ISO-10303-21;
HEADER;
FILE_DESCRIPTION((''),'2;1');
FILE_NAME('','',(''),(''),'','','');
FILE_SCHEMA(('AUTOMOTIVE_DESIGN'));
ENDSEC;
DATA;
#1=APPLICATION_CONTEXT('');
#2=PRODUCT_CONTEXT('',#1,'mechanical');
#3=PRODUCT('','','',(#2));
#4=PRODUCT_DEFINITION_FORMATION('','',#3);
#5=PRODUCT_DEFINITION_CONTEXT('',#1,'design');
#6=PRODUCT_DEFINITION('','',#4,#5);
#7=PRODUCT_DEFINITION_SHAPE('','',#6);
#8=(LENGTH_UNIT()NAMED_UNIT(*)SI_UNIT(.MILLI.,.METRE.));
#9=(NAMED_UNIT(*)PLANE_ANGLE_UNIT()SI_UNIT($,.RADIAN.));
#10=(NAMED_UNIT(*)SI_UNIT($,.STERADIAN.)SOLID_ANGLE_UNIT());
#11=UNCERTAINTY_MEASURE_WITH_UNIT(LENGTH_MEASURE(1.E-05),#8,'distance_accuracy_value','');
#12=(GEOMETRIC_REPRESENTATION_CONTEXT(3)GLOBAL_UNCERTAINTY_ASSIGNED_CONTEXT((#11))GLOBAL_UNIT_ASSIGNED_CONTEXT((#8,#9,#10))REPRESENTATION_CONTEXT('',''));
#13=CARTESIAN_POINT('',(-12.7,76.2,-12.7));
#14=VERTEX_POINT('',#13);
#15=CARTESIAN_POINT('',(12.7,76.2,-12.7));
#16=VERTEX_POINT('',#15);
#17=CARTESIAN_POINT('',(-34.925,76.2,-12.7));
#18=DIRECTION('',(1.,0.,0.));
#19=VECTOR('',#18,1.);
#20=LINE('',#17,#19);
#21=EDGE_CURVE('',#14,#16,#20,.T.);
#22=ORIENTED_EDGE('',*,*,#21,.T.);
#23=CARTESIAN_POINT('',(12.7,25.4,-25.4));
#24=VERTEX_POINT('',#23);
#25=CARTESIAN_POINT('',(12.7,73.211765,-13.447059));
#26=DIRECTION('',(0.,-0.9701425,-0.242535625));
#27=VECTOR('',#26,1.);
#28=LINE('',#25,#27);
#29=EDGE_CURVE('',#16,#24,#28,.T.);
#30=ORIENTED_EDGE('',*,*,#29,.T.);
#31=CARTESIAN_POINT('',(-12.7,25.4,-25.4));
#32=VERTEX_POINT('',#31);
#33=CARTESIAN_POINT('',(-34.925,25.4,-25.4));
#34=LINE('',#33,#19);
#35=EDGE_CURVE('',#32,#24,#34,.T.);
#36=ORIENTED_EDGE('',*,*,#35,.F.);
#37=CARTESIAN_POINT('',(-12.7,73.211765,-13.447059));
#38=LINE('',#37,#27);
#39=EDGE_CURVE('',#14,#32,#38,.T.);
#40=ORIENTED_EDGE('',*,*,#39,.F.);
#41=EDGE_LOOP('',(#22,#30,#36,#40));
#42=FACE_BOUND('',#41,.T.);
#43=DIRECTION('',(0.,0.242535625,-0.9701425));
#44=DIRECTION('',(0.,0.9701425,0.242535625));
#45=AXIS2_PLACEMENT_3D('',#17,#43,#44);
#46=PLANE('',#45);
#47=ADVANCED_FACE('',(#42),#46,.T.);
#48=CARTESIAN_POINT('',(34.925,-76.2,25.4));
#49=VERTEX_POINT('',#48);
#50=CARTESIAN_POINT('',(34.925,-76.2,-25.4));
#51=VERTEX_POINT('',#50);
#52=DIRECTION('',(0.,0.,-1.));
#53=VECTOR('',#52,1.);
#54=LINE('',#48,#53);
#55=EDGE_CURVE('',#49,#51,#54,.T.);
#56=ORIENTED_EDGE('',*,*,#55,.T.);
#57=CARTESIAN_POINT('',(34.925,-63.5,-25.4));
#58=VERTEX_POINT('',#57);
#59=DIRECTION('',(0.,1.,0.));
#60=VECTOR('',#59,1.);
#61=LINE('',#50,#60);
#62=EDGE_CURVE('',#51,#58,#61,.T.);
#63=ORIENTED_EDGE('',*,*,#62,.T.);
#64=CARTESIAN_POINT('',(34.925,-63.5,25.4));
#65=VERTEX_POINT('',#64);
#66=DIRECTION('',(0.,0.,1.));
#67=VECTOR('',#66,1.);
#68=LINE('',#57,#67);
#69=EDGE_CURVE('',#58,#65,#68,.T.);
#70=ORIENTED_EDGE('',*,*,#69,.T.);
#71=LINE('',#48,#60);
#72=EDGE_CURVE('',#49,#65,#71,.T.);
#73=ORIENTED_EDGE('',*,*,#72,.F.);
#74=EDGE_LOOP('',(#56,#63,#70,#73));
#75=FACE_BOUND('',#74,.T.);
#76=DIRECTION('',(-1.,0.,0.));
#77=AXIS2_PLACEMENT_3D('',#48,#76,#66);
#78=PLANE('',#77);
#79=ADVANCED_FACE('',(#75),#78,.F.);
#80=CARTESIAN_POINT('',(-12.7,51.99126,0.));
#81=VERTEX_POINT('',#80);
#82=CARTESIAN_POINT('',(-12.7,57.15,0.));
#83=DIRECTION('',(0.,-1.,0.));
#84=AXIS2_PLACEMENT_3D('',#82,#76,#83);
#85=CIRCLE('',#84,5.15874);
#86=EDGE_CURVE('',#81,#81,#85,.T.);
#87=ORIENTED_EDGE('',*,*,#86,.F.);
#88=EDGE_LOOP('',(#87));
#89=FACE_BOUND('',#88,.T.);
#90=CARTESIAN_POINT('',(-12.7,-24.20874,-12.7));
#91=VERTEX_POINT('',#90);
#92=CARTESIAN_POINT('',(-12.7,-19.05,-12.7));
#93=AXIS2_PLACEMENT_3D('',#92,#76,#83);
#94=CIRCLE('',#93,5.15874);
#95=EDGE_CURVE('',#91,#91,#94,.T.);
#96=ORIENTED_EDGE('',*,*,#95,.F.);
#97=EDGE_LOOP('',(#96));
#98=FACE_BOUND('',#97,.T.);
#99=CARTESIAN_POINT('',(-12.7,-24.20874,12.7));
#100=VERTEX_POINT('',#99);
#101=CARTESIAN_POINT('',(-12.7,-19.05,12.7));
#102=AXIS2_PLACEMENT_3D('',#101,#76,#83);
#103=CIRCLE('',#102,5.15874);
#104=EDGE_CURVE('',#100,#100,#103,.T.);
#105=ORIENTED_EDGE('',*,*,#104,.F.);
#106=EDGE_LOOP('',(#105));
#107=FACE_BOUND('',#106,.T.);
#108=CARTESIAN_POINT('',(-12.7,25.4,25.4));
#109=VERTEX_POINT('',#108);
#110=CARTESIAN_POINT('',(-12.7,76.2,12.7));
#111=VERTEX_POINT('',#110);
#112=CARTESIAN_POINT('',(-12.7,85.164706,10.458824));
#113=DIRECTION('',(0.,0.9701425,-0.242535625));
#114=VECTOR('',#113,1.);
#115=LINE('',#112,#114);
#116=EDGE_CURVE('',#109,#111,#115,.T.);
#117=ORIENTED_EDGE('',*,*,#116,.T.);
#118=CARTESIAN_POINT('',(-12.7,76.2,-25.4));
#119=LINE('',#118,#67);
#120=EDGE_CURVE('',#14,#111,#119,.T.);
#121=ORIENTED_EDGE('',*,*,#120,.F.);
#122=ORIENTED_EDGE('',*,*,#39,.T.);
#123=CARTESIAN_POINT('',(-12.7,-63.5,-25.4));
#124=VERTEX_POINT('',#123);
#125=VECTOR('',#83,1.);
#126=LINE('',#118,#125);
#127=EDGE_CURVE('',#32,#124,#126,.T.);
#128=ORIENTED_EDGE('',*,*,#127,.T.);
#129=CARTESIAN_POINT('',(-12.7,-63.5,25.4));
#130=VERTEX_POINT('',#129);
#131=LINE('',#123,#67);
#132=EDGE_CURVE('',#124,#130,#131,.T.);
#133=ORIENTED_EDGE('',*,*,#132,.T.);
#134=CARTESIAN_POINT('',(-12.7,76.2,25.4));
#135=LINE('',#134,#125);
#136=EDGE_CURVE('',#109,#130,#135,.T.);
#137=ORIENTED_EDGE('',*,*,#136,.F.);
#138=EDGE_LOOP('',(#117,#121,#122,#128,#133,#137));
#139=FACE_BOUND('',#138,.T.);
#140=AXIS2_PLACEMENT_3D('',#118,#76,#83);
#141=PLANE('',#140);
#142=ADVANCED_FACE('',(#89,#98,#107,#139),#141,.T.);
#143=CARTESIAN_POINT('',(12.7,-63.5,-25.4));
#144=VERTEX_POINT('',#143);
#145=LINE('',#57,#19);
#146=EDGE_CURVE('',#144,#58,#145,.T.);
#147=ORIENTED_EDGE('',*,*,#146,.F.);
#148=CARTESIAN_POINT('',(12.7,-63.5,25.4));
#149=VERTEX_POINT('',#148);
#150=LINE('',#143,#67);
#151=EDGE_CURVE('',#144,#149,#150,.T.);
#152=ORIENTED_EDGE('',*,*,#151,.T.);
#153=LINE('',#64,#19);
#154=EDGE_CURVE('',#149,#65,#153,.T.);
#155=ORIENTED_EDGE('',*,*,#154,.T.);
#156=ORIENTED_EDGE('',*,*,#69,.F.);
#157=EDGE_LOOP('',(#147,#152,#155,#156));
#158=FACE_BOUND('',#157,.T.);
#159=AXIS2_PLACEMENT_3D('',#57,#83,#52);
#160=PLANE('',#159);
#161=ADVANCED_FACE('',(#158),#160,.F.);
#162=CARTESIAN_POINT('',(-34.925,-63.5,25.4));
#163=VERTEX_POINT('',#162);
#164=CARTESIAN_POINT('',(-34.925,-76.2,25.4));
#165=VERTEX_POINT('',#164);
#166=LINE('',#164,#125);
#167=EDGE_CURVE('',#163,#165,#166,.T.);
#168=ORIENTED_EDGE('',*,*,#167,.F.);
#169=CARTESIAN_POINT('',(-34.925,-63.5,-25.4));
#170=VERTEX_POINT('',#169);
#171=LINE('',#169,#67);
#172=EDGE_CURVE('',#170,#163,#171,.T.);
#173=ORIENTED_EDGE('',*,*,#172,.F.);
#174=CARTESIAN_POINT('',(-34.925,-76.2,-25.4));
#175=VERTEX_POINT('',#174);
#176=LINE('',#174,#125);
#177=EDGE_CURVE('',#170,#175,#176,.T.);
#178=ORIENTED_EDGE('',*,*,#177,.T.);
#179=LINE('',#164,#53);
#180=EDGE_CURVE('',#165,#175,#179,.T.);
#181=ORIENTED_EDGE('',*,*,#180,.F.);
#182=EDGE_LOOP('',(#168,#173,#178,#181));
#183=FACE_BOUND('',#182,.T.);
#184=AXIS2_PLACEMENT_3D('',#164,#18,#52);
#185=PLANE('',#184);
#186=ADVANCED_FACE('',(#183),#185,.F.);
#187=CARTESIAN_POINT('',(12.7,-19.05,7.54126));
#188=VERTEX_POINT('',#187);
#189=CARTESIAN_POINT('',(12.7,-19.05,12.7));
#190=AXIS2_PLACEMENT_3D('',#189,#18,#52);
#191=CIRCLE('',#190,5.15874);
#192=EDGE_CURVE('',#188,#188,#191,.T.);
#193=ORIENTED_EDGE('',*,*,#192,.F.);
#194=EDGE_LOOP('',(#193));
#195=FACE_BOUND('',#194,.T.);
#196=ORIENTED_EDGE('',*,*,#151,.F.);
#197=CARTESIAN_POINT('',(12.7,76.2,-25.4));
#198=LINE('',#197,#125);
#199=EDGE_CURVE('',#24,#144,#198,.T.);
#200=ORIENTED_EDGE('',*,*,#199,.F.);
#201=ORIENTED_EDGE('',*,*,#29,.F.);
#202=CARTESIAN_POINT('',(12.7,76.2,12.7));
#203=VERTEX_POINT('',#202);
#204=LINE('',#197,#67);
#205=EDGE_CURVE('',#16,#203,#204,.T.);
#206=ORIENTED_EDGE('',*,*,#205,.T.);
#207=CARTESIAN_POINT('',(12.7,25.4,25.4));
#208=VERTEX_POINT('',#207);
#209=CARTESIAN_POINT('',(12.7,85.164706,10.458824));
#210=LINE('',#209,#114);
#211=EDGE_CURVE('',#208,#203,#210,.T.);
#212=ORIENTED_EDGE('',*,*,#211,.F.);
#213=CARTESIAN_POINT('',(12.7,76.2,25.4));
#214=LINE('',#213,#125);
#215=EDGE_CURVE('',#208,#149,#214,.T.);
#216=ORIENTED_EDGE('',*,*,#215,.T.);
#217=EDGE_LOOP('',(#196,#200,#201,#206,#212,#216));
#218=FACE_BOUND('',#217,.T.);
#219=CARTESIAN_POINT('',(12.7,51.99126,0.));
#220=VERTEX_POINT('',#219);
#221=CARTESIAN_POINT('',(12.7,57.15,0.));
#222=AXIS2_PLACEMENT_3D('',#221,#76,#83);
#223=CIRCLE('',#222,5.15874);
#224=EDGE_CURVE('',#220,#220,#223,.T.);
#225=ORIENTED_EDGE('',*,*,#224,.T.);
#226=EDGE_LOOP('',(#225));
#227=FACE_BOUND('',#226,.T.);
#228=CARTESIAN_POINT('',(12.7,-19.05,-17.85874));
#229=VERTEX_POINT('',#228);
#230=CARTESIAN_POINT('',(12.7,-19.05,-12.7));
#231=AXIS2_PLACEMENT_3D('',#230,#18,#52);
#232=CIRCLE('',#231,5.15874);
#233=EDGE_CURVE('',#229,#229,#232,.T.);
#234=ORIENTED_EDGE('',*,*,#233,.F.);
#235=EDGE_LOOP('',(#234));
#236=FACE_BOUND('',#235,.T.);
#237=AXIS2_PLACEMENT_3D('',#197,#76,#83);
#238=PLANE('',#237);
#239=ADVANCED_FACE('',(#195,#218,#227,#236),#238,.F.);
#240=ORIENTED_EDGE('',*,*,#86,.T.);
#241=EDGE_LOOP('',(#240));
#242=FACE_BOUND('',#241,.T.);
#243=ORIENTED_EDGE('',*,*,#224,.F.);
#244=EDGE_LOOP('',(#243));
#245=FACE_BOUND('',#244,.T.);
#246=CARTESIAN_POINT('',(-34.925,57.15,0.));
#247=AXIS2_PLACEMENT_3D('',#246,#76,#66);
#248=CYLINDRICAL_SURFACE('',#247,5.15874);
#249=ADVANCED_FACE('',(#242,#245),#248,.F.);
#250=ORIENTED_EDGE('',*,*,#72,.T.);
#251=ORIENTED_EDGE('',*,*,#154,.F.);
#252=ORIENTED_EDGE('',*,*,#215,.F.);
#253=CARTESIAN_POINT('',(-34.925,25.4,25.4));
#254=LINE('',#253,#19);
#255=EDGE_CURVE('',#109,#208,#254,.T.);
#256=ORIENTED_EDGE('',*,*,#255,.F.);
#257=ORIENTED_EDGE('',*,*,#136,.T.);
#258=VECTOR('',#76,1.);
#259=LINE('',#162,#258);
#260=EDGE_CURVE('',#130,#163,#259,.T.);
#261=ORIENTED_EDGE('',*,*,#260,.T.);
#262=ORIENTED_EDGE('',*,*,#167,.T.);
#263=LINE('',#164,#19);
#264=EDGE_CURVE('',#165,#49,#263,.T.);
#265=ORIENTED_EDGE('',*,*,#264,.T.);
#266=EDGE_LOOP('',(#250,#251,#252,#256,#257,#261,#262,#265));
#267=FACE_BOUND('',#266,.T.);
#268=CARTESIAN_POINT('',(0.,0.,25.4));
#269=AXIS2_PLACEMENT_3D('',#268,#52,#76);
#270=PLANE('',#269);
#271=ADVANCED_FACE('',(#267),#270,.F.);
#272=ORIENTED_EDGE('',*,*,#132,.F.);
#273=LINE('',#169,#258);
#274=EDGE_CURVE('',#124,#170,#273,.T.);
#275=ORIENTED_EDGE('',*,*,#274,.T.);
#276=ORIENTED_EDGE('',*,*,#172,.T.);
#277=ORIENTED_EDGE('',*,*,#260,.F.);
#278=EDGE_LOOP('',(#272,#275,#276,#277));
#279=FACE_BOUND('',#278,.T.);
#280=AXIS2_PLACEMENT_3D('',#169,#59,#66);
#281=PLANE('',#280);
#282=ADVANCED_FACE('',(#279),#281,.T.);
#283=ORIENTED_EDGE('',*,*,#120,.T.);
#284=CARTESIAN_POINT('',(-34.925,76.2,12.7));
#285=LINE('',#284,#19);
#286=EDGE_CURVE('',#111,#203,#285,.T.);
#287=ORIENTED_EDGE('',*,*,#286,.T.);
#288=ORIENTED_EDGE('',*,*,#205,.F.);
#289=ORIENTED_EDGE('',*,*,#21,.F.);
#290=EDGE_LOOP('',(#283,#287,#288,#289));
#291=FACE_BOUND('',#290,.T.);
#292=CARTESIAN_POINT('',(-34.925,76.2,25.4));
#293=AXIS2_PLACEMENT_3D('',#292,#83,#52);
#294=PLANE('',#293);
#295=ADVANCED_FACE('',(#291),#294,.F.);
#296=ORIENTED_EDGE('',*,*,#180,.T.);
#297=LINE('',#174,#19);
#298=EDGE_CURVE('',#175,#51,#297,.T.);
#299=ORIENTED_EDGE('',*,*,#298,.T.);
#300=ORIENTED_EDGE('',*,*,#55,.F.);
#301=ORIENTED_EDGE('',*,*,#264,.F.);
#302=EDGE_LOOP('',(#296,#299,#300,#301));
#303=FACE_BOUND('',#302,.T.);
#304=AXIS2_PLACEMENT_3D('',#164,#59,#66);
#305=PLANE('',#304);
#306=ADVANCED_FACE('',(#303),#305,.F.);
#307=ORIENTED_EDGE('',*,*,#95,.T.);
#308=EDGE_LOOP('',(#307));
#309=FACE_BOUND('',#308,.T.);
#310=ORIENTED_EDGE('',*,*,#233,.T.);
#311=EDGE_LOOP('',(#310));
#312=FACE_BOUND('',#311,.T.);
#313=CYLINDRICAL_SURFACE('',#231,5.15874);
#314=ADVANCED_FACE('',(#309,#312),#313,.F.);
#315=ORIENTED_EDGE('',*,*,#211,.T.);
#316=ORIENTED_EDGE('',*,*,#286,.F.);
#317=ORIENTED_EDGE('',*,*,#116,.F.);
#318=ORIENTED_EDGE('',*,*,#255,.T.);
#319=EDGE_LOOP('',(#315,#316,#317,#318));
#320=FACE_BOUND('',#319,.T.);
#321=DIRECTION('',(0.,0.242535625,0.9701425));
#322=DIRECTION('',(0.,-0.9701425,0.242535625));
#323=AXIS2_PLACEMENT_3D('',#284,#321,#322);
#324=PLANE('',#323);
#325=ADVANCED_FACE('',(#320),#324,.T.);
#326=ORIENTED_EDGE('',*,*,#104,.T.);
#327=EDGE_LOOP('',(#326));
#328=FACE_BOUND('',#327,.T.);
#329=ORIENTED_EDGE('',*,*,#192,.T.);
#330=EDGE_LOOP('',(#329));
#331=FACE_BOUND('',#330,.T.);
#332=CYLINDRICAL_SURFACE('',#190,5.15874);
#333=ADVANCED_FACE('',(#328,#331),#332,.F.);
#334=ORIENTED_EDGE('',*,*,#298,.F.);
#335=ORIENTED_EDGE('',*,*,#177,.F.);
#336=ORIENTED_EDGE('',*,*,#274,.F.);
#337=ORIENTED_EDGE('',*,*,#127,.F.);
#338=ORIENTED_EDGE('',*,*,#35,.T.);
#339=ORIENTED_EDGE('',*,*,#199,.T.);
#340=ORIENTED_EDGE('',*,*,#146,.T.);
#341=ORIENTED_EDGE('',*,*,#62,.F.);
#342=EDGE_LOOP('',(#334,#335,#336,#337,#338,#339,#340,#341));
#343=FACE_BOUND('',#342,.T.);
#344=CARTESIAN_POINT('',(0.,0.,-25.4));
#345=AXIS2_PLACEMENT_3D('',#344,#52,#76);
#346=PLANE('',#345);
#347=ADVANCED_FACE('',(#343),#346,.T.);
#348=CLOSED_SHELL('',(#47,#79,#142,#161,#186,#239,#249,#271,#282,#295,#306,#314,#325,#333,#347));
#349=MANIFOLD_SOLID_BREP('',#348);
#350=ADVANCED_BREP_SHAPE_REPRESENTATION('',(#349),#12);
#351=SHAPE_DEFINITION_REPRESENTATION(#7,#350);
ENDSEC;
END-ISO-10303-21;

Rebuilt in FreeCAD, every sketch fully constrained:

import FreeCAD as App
import Part
import Sketcher
Q = App.Units.Quantity

doc = App.newDocument("Part")
body = doc.addObject("PartDesign::Body", "Body")

# Sketch on XY plane
sketch1 = body.newObject("Sketcher::SketchObject", "Sketch")
sketch1.AttachmentSupport = (doc.getObject("XY_Plane"), [""])
sketch1.MapMode = "FlatFace"
sketch1.addGeometry(Part.LineSegment(App.Vector(-35, 76, 0), App.Vector(-35, -76, 0)), False)
sketch1.addGeometry(Part.LineSegment(App.Vector(-35, -76, 0), App.Vector(35, -76, 0)), False)
sketch1.addGeometry(Part.LineSegment(App.Vector(35, -76, 0), App.Vector(35, 76, 0)), False)
sketch1.addGeometry(Part.LineSegment(App.Vector(35, 76, 0), App.Vector(-35, 76, 0)), False)
sketch1.addConstraint(Sketcher.Constraint("Coincident", 0, 2, 1, 1))
sketch1.addConstraint(Sketcher.Constraint("Coincident", 1, 2, 2, 1))
sketch1.addConstraint(Sketcher.Constraint("Coincident", 2, 2, 3, 1))
sketch1.addConstraint(Sketcher.Constraint("Coincident", 3, 2, 0, 1))
sketch1.addConstraint(Sketcher.Constraint("Vertical", 0))
sketch1.addConstraint(Sketcher.Constraint("Horizontal", 1))
sketch1.addConstraint(Sketcher.Constraint("Vertical", 2))
sketch1.addConstraint(Sketcher.Constraint("Horizontal", 3))
sketch1.addConstraint(Sketcher.Constraint("Symmetric", 0, 2, 2, 2, -1, 1))
sketch1.addConstraint(Sketcher.Constraint("DistanceY", 0, 2, 0, 1, Q("6 in")))
sketch1.addConstraint(Sketcher.Constraint("DistanceX", 1, 1, 1, 2, Q("2.75 in")))
pad1 = body.newObject("PartDesign::Pad", "Pad")
pad1.Profile = sketch1
pad1.Length = Q("2 in")
pad1.Midplane = True

# Sketch on XY plane
sketch2 = body.newObject("Sketcher::SketchObject", "Sketch001")
sketch2.AttachmentSupport = (doc.getObject("XY_Plane"), [""])
sketch2.MapMode = "FlatFace"
sketch2.addGeometry(Part.LineSegment(App.Vector(13, 76, 0), App.Vector(13, -64, 0)), False)
sketch2.addGeometry(Part.LineSegment(App.Vector(13, -64, 0), App.Vector(35, -64, 0)), False)
sketch2.addGeometry(Part.LineSegment(App.Vector(35, -64, 0), App.Vector(35, 76, 0)), False)
sketch2.addGeometry(Part.LineSegment(App.Vector(35, 76, 0), App.Vector(13, 76, 0)), False)
sketch2.addConstraint(Sketcher.Constraint("Coincident", 0, 2, 1, 1))
sketch2.addConstraint(Sketcher.Constraint("Coincident", 1, 2, 2, 1))
sketch2.addConstraint(Sketcher.Constraint("Coincident", 2, 2, 3, 1))
sketch2.addConstraint(Sketcher.Constraint("Coincident", 3, 2, 0, 1))
sketch2.addConstraint(Sketcher.Constraint("Vertical", 0))
sketch2.addConstraint(Sketcher.Constraint("Horizontal", 1))
sketch2.addConstraint(Sketcher.Constraint("Vertical", 2))
sketch2.addConstraint(Sketcher.Constraint("Horizontal", 3))
sketch2.addConstraint(Sketcher.Constraint("DistanceY", 0, 2, 0, 1, Q("5.5 in")))
sketch2.addConstraint(Sketcher.Constraint("DistanceY", -1, 1, 2, 2, Q("3 in")))
sketch2.addConstraint(Sketcher.Constraint("DistanceX", -1, 1, 0, 2, Q("0.5 in")))
sketch2.addConstraint(Sketcher.Constraint("DistanceX", 1, 1, 1, 2, Q("0.875 in")))
pocket1 = body.newObject("PartDesign::Pocket", "Pocket")
pocket1.Profile = sketch2
pocket1.Length = 52.8
pocket1.Midplane = True
doc.recompute()

mirrored = body.newObject("PartDesign::Mirrored", "Mirrored")
mirrored.Originals = [pocket1]
mirrored.MirrorPlane = (doc.getObject("YZ_Plane"), [""])
body.Tip = mirrored

# Sketch on YZ plane
sketch3 = body.newObject("Sketcher::SketchObject", "Sketch002")
sketch3.AttachmentSupport = (doc.getObject("YZ_Plane"), [""])
sketch3.MapMode = "FlatFace"
sketch3.addGeometry(Part.LineSegment(App.Vector(95, 44, 0), App.Vector(-95, 44, 0)), False)
sketch3.addGeometry(Part.LineSegment(App.Vector(-95, 44, 0), App.Vector(-95, -44, 0)), False)
sketch3.addGeometry(Part.LineSegment(App.Vector(-95, -44, 0), App.Vector(95, -44, 0)), False)
sketch3.addGeometry(Part.LineSegment(App.Vector(95, -44, 0), App.Vector(95, 44, 0)), False)
sketch3.addGeometry(Part.LineSegment(App.Vector(-76, 25, 0), App.Vector(25, 25, 0)), False)
sketch3.addGeometry(Part.LineSegment(App.Vector(25, 25, 0), App.Vector(76, 13, 0)), False)
sketch3.addGeometry(Part.LineSegment(App.Vector(76, 13, 0), App.Vector(76, -13, 0)), False)
sketch3.addGeometry(Part.LineSegment(App.Vector(76, -13, 0), App.Vector(25, -25, 0)), False)
sketch3.addGeometry(Part.LineSegment(App.Vector(25, -25, 0), App.Vector(-76, -25, 0)), False)
sketch3.addGeometry(Part.LineSegment(App.Vector(-76, -25, 0), App.Vector(-76, 25, 0)), False)
sketch3.addConstraint(Sketcher.Constraint("Coincident", 0, 2, 1, 1))
sketch3.addConstraint(Sketcher.Constraint("Coincident", 1, 2, 2, 1))
sketch3.addConstraint(Sketcher.Constraint("Coincident", 2, 2, 3, 1))
sketch3.addConstraint(Sketcher.Constraint("Coincident", 3, 2, 0, 1))
sketch3.addConstraint(Sketcher.Constraint("Coincident", 4, 2, 5, 1))
sketch3.addConstraint(Sketcher.Constraint("Coincident", 5, 2, 6, 1))
sketch3.addConstraint(Sketcher.Constraint("Coincident", 6, 2, 7, 1))
sketch3.addConstraint(Sketcher.Constraint("Coincident", 7, 2, 8, 1))
sketch3.addConstraint(Sketcher.Constraint("Coincident", 8, 2, 9, 1))
sketch3.addConstraint(Sketcher.Constraint("Coincident", 9, 2, 4, 1))
sketch3.addConstraint(Sketcher.Constraint("Horizontal", 0))
sketch3.addConstraint(Sketcher.Constraint("Vertical", 1))
sketch3.addConstraint(Sketcher.Constraint("Horizontal", 2))
sketch3.addConstraint(Sketcher.Constraint("Vertical", 3))
sketch3.addConstraint(Sketcher.Constraint("Horizontal", 4))
sketch3.addConstraint(Sketcher.Constraint("Vertical", 6))
sketch3.addConstraint(Sketcher.Constraint("Horizontal", 8))
sketch3.addConstraint(Sketcher.Constraint("Vertical", 9))
sketch3.addConstraint(Sketcher.Constraint("Symmetric", 0, 2, 2, 2, -1, 1))
sketch3.addConstraint(Sketcher.Constraint("Symmetric", 4, 2, 7, 2, -1))
sketch3.addConstraint(Sketcher.Constraint("Equal", 5, 7))
sketch3.addConstraint(Sketcher.Constraint("DistanceX", 4, 1, 4, 2, Q("4 in")))
sketch3.addConstraint(Sketcher.Constraint("DistanceY", 6, 2, 6, 1, Q("1 in")))
sketch3.addConstraint(Sketcher.Constraint("DistanceY", 9, 1, 9, 2, Q("2 in")))
sketch3.addConstraint(Sketcher.Constraint("DistanceX", -1, 1, 4, 2, Q("1 in")))
sketch3.addConstraint(Sketcher.Constraint("DistanceX", -1, 1, 5, 2, Q("3 in")))
sketch3.addConstraint(Sketcher.Constraint("DistanceX", 0, 2, 0, 1, 189.434))
sketch3.addConstraint(Sketcher.Constraint("DistanceY", 1, 2, 1, 1, 87.834))
pocket2 = body.newObject("PartDesign::Pocket", "Pocket001")
pocket2.Profile = sketch3
pocket2.Type = "ThroughAll"
pocket2.Midplane = True

# Sketch on YZ plane
sketch4 = body.newObject("Sketcher::SketchObject", "Sketch003")
sketch4.AttachmentSupport = (doc.getObject("YZ_Plane"), [""])
sketch4.MapMode = "FlatFace"
sketch4.AttachmentOffset = App.Placement(App.Vector(0, 0, -1.375 * 25.4), App.Rotation())
sketch4.addGeometry(Part.Circle(App.Vector(83, 25, 0), App.Vector(0, 0, 1), 5), False)
sketch4.addGeometry(Part.Circle(App.Vector(57, 0, 0), App.Vector(0, 0, 1), 5), False)
sketch4.addConstraint(Sketcher.Constraint("Equal", 0, 1))
sketch4.addConstraint(Sketcher.Constraint("PointOnObject", 1, 3, -1))
sketch4.addConstraint(Sketcher.Constraint("DistanceY", -1, 1, 0, 3, Q("1 in")))
sketch4.addConstraint(Sketcher.Constraint("DistanceX", 1, 3, 0, 3, Q("1 in")))
sketch4.addConstraint(Sketcher.Constraint("Diameter", 0, Q("0.4062 in")))
sketch4.addConstraint(Sketcher.Constraint("DistanceX", -1, 1, 0, 3, Q("3.25 in")))
doc.recompute()
hole = body.newObject("PartDesign::Hole", "Hole")
hole.Profile = sketch4
hole.ThreadType = "None"
hole.Diameter = Q("0.4062 in")
hole.DepthType = "ThroughAll"
hole.Reversed = True

# Sketch on YZ plane
sketch5 = body.newObject("Sketcher::SketchObject", "Sketch004")
sketch5.AttachmentSupport = (doc.getObject("YZ_Plane"), [""])
sketch5.MapMode = "FlatFace"
sketch5.AttachmentOffset = App.Placement(App.Vector(0, 0, 0.5 * 25.4), App.Rotation())
sketch5.addGeometry(Part.Circle(App.Vector(-19, 13, 0), App.Vector(0, 0, 1), 5), False)
sketch5.addGeometry(Part.Circle(App.Vector(-19, -13, 0), App.Vector(0, 0, 1), 5), False)
sketch5.addConstraint(Sketcher.Constraint("Equal", 0, 1))
sketch5.addConstraint(Sketcher.Constraint("Symmetric", 0, 3, 1, 3, -1))
sketch5.addConstraint(Sketcher.Constraint("DistanceY", 1, 3, 0, 3, Q("1 in")))
sketch5.addConstraint(Sketcher.Constraint("Diameter", 0, Q("0.4062 in")))
sketch5.addConstraint(Sketcher.Constraint("DistanceX", 0, 3, -1, 1, Q("0.75 in")))
doc.recompute()
hole2 = body.newObject("PartDesign::Hole", "Hole001")
hole2.Profile = sketch5
hole2.ThreadType = "None"
hole2.Diameter = Q("0.4062 in")
hole2.DepthType = "ThroughAll"

doc.recompute()
